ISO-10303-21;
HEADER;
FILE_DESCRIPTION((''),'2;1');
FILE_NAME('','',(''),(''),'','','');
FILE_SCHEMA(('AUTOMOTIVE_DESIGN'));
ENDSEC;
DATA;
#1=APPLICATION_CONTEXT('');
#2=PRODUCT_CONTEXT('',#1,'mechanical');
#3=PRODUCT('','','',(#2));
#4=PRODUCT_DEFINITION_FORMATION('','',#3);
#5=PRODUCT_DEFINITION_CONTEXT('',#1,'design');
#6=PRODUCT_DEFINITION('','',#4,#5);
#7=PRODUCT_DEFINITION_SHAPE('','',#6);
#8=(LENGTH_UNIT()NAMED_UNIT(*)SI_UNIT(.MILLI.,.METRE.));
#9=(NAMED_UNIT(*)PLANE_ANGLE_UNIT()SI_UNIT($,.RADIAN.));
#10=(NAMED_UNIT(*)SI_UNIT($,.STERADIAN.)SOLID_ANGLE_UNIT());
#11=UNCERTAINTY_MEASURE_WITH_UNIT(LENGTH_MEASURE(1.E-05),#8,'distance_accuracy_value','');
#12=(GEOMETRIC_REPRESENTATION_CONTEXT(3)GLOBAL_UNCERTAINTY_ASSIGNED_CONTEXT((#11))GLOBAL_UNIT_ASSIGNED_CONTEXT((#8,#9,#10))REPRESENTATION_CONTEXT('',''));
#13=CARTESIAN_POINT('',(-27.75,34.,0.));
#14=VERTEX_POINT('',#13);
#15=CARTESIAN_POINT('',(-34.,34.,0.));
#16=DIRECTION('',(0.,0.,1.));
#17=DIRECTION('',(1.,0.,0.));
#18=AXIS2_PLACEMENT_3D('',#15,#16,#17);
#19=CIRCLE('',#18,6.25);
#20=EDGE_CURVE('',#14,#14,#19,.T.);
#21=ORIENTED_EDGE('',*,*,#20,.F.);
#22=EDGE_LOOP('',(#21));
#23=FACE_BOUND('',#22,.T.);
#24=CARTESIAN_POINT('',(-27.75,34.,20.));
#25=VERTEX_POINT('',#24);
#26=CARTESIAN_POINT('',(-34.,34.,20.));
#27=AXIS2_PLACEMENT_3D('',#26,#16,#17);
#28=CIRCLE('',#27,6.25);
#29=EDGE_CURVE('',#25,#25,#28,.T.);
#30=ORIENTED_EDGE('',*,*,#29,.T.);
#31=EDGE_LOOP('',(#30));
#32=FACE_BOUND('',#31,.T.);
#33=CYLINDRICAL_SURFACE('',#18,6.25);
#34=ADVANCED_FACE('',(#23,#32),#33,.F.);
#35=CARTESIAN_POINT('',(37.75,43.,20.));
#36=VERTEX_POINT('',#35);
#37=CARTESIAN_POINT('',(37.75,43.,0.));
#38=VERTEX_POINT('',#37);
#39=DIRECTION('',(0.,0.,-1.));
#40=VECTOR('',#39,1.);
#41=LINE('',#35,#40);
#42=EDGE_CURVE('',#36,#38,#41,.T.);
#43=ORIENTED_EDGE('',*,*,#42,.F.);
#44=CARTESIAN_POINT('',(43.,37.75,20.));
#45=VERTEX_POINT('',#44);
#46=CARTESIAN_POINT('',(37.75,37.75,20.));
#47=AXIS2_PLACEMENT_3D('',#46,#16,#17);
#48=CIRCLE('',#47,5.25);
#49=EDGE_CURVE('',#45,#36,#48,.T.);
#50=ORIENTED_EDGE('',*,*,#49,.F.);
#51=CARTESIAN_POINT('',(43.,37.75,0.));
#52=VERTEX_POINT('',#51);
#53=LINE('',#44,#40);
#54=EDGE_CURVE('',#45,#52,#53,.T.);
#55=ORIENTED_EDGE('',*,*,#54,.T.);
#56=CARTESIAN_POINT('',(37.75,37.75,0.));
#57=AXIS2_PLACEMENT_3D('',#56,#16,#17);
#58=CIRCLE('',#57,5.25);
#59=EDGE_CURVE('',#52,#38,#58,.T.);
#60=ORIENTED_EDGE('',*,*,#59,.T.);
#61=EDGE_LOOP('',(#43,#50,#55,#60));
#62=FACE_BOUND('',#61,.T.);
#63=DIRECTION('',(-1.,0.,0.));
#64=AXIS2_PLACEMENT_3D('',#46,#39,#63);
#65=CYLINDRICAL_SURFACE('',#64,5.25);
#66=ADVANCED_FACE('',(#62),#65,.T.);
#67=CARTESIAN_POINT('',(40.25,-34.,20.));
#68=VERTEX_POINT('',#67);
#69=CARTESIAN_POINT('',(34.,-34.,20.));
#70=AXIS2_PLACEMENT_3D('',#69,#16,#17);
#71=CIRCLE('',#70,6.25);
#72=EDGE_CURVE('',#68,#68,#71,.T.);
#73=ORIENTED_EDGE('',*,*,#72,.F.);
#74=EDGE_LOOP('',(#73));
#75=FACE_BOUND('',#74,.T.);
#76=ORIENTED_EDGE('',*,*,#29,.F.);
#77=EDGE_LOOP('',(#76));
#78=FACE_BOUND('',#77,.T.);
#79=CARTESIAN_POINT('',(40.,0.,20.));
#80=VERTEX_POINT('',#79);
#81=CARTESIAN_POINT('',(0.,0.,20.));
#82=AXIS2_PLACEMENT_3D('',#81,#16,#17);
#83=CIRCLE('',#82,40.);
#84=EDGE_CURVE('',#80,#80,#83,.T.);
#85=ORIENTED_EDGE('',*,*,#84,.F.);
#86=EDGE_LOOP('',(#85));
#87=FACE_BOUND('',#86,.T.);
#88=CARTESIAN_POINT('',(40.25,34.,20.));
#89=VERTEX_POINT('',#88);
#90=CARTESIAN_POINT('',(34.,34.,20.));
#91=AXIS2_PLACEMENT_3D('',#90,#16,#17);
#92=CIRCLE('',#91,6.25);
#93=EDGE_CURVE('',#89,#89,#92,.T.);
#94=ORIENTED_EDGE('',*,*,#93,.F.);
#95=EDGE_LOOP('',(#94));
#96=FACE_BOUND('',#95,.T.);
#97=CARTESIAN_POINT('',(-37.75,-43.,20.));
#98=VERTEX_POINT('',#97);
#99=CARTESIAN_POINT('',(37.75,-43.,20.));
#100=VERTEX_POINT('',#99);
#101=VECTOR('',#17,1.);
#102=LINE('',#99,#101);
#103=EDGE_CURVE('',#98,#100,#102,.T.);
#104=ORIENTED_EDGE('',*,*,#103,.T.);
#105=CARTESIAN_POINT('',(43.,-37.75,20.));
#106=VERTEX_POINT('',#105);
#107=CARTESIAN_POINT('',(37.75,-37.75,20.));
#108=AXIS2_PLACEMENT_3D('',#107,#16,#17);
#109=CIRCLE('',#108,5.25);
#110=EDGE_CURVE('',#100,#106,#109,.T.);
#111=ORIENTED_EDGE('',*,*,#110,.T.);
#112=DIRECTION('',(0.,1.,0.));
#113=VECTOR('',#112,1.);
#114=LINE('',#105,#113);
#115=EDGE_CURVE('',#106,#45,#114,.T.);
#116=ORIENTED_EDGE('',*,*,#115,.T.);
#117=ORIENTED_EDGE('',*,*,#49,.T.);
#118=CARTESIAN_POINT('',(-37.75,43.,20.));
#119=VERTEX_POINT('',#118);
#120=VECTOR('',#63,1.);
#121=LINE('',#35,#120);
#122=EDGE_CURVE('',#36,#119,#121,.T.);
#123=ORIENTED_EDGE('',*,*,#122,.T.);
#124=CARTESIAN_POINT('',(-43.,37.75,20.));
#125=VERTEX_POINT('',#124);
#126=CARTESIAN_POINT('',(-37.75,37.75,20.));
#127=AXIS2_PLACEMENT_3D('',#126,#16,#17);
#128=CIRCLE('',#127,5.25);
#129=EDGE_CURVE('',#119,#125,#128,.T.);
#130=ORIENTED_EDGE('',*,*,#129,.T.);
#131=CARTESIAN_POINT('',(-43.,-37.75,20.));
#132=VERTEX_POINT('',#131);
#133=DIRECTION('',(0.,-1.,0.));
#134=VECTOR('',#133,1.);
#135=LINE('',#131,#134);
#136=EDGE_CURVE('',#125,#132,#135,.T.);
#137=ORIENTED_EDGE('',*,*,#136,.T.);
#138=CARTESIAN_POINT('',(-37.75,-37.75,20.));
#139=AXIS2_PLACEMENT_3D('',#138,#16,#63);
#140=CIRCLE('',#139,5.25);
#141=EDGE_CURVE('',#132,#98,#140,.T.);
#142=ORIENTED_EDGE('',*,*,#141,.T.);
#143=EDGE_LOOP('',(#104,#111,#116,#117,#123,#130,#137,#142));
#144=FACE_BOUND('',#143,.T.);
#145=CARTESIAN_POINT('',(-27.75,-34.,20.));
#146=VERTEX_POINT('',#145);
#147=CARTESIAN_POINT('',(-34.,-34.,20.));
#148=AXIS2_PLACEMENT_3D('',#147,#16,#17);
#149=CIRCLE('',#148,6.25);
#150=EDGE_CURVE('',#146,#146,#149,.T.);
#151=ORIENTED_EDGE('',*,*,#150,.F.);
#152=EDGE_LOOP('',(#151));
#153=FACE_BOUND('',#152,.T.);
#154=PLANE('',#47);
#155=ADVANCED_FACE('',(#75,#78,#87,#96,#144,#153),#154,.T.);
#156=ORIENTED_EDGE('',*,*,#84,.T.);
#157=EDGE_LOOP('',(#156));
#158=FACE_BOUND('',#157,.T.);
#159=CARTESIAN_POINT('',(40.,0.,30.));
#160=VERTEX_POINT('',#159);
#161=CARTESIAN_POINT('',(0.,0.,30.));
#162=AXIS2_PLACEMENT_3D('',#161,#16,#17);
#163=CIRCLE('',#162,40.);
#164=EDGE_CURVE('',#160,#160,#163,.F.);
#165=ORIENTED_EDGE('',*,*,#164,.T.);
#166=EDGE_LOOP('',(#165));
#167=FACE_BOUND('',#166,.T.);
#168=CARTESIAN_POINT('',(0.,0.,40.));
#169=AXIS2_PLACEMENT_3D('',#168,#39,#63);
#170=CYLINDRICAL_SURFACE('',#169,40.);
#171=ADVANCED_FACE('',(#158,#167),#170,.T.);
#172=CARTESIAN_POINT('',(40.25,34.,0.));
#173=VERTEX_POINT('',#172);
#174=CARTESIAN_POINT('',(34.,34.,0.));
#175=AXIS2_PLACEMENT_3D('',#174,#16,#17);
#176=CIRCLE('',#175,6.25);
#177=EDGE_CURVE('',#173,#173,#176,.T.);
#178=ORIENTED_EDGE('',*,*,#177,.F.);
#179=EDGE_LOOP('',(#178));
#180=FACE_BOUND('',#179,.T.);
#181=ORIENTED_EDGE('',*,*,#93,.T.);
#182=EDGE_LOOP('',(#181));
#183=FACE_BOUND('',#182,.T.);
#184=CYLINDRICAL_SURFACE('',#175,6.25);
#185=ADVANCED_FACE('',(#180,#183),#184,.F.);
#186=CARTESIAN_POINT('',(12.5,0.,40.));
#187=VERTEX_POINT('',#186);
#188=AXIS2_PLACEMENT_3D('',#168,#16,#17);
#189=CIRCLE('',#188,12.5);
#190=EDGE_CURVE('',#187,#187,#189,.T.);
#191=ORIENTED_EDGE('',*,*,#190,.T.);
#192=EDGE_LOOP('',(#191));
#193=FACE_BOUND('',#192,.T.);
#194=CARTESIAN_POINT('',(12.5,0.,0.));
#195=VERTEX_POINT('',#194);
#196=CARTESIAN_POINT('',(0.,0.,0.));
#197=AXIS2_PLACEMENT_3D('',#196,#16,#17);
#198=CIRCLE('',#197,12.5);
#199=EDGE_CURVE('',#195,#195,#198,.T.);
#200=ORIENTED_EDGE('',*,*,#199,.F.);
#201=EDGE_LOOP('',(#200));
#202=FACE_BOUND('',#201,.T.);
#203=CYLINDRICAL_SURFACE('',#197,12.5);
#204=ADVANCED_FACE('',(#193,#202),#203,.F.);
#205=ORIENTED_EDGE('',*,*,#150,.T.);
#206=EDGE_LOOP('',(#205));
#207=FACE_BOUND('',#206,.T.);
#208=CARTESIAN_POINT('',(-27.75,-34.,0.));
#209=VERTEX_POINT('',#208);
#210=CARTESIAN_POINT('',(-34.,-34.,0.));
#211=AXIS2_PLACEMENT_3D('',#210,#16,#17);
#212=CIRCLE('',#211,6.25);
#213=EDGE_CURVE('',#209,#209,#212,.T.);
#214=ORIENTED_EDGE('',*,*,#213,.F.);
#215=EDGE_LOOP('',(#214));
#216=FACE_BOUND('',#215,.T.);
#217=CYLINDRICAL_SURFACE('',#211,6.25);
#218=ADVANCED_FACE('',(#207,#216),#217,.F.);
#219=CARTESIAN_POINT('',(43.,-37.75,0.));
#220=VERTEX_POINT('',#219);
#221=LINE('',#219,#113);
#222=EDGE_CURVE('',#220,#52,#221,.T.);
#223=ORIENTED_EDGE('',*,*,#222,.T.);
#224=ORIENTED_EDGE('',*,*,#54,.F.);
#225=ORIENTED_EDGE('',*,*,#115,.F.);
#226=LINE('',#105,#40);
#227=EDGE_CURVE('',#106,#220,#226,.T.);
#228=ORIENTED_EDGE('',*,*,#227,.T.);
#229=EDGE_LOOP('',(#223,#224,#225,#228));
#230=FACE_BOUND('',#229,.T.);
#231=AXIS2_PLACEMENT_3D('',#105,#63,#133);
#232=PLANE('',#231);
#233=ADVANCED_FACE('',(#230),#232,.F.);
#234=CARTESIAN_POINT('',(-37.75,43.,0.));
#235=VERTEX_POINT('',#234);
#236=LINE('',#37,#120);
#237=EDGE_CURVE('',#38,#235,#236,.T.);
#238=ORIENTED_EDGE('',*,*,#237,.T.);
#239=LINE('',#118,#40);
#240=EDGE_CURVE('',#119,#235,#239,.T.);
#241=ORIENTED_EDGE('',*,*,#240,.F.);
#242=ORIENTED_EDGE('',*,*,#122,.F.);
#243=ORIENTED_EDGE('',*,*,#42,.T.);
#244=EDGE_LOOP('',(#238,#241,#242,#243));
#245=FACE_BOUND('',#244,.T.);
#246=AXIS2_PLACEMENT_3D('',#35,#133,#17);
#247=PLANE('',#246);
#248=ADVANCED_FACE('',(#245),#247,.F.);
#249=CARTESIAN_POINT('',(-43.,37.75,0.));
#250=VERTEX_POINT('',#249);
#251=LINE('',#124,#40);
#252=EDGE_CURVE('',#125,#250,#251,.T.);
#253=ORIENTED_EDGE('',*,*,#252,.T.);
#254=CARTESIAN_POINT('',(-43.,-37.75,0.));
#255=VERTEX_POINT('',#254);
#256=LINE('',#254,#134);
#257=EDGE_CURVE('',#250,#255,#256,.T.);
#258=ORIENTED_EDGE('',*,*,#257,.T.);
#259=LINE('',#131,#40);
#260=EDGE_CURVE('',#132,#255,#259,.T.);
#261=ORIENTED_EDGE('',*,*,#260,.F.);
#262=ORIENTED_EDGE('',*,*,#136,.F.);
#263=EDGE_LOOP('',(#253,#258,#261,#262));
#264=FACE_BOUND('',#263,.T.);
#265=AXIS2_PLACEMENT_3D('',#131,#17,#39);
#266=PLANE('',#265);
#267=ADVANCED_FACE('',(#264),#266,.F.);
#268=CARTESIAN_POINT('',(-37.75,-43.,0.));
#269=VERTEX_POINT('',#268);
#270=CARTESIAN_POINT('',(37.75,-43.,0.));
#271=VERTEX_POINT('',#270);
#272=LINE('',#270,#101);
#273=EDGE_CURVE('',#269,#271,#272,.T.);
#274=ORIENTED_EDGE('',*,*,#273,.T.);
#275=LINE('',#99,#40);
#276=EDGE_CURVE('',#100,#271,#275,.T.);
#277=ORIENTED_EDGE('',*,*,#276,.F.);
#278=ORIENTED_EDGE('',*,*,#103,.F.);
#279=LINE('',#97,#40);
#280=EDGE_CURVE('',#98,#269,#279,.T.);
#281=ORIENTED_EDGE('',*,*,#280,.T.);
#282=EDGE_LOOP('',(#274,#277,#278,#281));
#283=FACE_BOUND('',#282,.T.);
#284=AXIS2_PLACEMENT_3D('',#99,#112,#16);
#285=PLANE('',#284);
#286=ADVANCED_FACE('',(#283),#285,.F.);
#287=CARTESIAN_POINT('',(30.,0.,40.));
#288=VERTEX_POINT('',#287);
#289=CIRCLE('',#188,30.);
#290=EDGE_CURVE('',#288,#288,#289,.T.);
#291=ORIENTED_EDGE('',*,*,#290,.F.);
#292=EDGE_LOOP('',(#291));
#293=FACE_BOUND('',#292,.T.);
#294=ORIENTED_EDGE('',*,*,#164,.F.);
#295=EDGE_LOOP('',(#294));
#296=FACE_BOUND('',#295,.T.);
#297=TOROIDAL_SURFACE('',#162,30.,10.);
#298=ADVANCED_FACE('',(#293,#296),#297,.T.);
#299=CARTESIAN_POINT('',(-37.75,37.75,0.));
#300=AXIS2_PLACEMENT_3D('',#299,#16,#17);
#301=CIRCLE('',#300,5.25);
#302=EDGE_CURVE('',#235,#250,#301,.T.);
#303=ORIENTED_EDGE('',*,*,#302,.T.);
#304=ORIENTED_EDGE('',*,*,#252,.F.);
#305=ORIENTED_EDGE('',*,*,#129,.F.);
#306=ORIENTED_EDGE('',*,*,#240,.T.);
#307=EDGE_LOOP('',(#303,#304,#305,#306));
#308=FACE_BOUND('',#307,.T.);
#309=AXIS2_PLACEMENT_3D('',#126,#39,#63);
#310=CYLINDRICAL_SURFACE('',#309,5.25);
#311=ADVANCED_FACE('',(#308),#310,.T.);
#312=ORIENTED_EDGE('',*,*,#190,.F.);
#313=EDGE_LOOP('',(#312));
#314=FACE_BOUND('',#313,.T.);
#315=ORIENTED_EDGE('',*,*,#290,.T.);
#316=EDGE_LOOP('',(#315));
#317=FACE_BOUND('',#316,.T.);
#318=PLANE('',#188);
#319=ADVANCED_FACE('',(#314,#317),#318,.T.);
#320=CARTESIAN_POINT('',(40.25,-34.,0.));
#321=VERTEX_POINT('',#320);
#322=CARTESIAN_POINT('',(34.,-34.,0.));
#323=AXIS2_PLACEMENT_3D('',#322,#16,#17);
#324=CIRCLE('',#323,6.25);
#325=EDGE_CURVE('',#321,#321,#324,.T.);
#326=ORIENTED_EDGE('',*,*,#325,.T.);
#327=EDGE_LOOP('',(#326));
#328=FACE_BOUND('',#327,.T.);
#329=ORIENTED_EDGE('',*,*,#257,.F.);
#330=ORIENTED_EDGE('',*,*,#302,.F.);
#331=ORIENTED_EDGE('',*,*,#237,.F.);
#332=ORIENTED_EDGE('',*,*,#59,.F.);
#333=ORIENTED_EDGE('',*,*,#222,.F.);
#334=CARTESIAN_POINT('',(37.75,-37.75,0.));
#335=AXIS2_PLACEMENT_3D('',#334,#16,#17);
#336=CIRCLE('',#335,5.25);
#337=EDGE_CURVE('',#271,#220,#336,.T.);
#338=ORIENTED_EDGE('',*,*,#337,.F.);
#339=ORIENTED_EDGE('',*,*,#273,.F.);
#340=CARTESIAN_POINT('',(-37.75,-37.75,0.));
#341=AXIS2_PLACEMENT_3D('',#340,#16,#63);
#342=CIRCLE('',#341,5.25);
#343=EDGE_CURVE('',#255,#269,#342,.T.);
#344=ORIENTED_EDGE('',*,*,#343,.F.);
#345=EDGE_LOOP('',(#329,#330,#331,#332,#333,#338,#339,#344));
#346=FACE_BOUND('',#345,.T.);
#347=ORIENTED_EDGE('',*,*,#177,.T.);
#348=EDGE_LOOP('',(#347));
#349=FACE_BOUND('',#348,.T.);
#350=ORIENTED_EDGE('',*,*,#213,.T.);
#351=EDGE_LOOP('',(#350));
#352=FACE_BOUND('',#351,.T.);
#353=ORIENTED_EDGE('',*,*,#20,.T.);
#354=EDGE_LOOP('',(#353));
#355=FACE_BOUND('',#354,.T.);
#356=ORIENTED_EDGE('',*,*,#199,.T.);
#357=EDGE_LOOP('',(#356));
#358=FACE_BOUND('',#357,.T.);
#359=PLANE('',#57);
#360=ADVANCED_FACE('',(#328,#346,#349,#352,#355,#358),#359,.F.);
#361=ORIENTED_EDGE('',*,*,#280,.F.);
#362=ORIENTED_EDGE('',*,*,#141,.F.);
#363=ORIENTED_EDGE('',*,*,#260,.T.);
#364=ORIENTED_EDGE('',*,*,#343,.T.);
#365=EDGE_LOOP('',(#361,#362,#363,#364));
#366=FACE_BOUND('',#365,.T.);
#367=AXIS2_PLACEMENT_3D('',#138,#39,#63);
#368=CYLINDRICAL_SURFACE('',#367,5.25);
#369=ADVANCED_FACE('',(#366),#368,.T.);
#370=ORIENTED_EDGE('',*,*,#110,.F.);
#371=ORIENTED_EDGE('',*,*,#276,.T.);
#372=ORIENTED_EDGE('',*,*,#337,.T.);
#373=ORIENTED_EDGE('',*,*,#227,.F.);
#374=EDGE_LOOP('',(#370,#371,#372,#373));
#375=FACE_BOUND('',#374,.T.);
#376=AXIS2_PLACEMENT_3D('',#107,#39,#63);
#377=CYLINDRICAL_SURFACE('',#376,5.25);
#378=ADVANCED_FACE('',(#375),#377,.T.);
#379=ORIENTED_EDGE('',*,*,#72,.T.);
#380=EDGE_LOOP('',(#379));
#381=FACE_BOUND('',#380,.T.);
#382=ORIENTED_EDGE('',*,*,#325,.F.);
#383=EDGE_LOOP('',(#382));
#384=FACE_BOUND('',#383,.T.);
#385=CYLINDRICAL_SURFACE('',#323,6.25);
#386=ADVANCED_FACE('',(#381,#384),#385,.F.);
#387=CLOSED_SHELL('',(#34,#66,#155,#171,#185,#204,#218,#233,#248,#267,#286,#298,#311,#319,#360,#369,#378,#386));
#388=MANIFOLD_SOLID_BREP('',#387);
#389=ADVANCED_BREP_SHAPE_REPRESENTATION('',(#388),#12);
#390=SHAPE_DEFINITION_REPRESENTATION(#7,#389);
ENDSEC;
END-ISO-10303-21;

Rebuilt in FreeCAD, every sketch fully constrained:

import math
import FreeCAD as App
import Part
import Sketcher

V = App.Vector
Q = App.Units.Quantity


def edges_at(feature, points):
    """Names of the edges that pass closest to the given points."""
    edges = feature.Shape.Edges
    near = lambda p: min(range(len(edges)), key=lambda i: edges[i].distToShape(Part.Vertex(*p))[0])
    return sorted({f"Edge{near(p) + 1}" for p in points})

doc = App.newDocument("Part")
body = doc.addObject("PartDesign::Body", "Body")

sketch1 = doc.addObject("Sketcher::SketchObject", "Sketch")
body.addObject(sketch1)
sketch1.AttachmentSupport = (doc.XY_Plane, [""])
sketch1.MapMode = "FlatFace"
sketch1.addGeometry([
    Part.LineSegment(V(-37.75, -43, 0), V(37.75, -43, 0)),
    Part.ArcOfCircle(Part.Circle(V(37.75, -37.75, 0), V(0, 0, 1), 5.25), math.radians(-90), math.radians(0)),
    Part.LineSegment(V(43, -37.75, 0), V(43, 37.75, 0)),
    Part.ArcOfCircle(Part.Circle(V(37.75, 37.75, 0), V(0, 0, 1), 5.25), math.radians(0), math.radians(90)),
    Part.LineSegment(V(37.75, 43, 0), V(-37.75, 43, 0)),
    Part.ArcOfCircle(Part.Circle(V(-37.75, 37.75, 0), V(0, 0, 1), 5.25), math.radians(90), math.radians(180)),
    Part.LineSegment(V(-43, 37.75, 0), V(-43, -37.75, 0)),
    Part.ArcOfCircle(Part.Circle(V(-37.75, -37.75, 0), V(0, 0, 1), 5.25), math.radians(-180), math.radians(-90)),
], False)
sketch1.addConstraint([
    Sketcher.Constraint("Tangent", 0, 2, 1, 1),
    Sketcher.Constraint("Tangent", 1, 2, 2, 1),
    Sketcher.Constraint("Tangent", 2, 2, 3, 1),
    Sketcher.Constraint("Tangent", 3, 2, 4, 1),
    Sketcher.Constraint("Tangent", 4, 2, 5, 1),
    Sketcher.Constraint("Tangent", 5, 2, 6, 1),
    Sketcher.Constraint("Tangent", 6, 2, 7, 1),
    Sketcher.Constraint("Tangent", 7, 2, 0, 1),
    Sketcher.Constraint("Horizontal", 0),
    Sketcher.Constraint("Vertical", 2),
    Sketcher.Constraint("Horizontal", 4),
    Sketcher.Constraint("Vertical", 6),
    Sketcher.Constraint("Equal", 1, 3),
    Sketcher.Constraint("Equal", 3, 5),
    Sketcher.Constraint("Equal", 5, 7),
    Sketcher.Constraint("Symmetric", 1, 3, 5, 3, -1, 1),
    Sketcher.Constraint("Equal", 4, 2),
    Sketcher.Constraint("Radius", 1, Q("5.25 mm")),
    Sketcher.Constraint("DistanceX", 0, 1, 0, 2, Q("75.5 mm")),
])
pad1 = doc.addObject("PartDesign::Pad", "Pad")
body.addObject(pad1)
pad1.Profile = sketch1
pad1.Length = 20

sketch2 = doc.addObject("Sketcher::SketchObject", "Sketch001")
body.addObject(sketch2)
sketch2.AttachmentSupport = (doc.XY_Plane, [""])
sketch2.MapMode = "FlatFace"
sketch2.AttachmentOffset = App.Placement(V(0, 0, 20), App.Rotation())
sketch2.addGeometry(Part.Circle(V(0, 0, 0), V(0, 0, 1), 40), False)
sketch2.addConstraint([
    Sketcher.Constraint("Coincident", 0, 3, -1, 1),
    Sketcher.Constraint("Diameter", 0, Q("80 mm")),
])
pad2 = doc.addObject("PartDesign::Pad", "Pad001")
body.addObject(pad2)
pad2.Profile = sketch2
pad2.Length = 20

sketch3 = doc.addObject("Sketcher::SketchObject", "Sketch002")
body.addObject(sketch3)
sketch3.AttachmentSupport = (doc.XY_Plane, [""])
sketch3.MapMode = "FlatFace"
sketch3.AttachmentOffset = App.Placement(V(0, 0, 40), App.Rotation())
sketch3.addGeometry([
    Part.Circle(V(0, 0, 0), V(0, 0, 1), 12.5),
    Part.Circle(V(-34, 34, 0), V(0, 0, 1), 6.25),
    Part.Circle(V(34, 34, 0), V(0, 0, 1), 6.25),
    Part.Circle(V(34, -34, 0), V(0, 0, 1), 6.25),
    Part.Circle(V(-34, -34, 0), V(0, 0, 1), 6.25),
], False)
sketch3.addConstraint([
    Sketcher.Constraint("Coincident", 0, 3, -1, 1),
    Sketcher.Constraint("Equal", 1, 2),
    Sketcher.Constraint("Equal", 2, 3),
    Sketcher.Constraint("Equal", 3, 4),
    Sketcher.Constraint("Symmetric", 1, 3, 3, 3, -1, 1),
    Sketcher.Constraint("Symmetric", 2, 3, 4, 3, -1, 1),
    Sketcher.Constraint("Symmetric", 1, 3, 2, 3, -2),
    Sketcher.Constraint("Diameter", 0, Q("25 mm")),
    Sketcher.Constraint("Diameter", 1, Q("12.5 mm")),
    Sketcher.Constraint("DistanceX", 1, 3, -1, 1, Q("34 mm")),
    Sketcher.Constraint("DistanceY", -1, 1, 1, 3, Q("34 mm")),
])
pocket1 = doc.addObject("PartDesign::Pocket", "Pocket")
body.addObject(pocket1)
pocket1.Profile = sketch3
pocket1.Type = "ThroughAll"
doc.recompute()

fillet = doc.addObject("PartDesign::Fillet", "Fillet")
body.addObject(fillet)
fillet.Base = (pocket1, edges_at(pocket1, [(-40, 0, 40)]))
fillet.Radius = 10

doc.recompute()
